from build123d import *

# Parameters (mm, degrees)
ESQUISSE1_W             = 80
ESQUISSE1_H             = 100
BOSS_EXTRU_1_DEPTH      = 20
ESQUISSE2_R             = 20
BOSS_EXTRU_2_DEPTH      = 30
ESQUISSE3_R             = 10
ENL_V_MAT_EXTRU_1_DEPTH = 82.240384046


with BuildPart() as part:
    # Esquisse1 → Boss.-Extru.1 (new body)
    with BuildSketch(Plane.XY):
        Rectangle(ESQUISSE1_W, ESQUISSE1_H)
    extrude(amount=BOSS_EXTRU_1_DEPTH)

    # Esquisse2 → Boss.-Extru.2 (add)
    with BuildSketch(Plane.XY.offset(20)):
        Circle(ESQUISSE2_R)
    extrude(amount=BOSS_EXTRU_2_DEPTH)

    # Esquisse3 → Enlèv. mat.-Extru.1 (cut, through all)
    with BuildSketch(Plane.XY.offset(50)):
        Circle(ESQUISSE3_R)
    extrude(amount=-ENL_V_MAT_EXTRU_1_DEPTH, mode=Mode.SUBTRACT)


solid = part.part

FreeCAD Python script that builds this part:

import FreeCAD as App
import Part
import Sketcher

V = App.Vector

doc = App.newDocument("Part")
body = doc.addObject("PartDesign::Body", "Body")

sketch1 = doc.addObject("Sketcher::SketchObject", "Sketch")
body.addObject(sketch1)
sketch1.AttachmentSupport = (doc.XY_Plane, [""])
sketch1.MapMode = "FlatFace"
sketch1.addGeometry(Part.LineSegment(V(-40, 50, 0), V(-40, -50, 0)), False)
sketch1.addGeometry(Part.LineSegment(V(-40, -50, 0), V(40, -50, 0)), False)
sketch1.addGeometry(Part.LineSegment(V(40, -50, 0), V(40, 50, 0)), False)
sketch1.addGeometry(Part.LineSegment(V(40, 50, 0), V(-40, 50, 0)), False)
sketch1.addConstraint(Sketcher.Constraint("Coincident", 0, 2, 1, 1))
sketch1.addConstraint(Sketcher.Constraint("Coincident", 1, 2, 2, 1))
sketch1.addConstraint(Sketcher.Constraint("Coincident", 2, 2, 3, 1))
sketch1.addConstraint(Sketcher.Constraint("Coincident", 3, 2, 0, 1))
sketch1.addConstraint(Sketcher.Constraint("Vertical", 0))
sketch1.addConstraint(Sketcher.Constraint("Horizontal", 1))
sketch1.addConstraint(Sketcher.Constraint("Vertical", 2))
sketch1.addConstraint(Sketcher.Constraint("Horizontal", 3))
sketch1.addConstraint(Sketcher.Constraint("Symmetric", 0, 2, 2, 2, -1, 1))
sketch1.addConstraint(Sketcher.Constraint("DistanceX", 1, 1, 1, 2, 80.0))
sketch1.addConstraint(Sketcher.Constraint("DistanceY", 0, 2, 0, 1, 100.0))
pad1 = doc.addObject("PartDesign::Pad", "Pad")
body.addObject(pad1)
pad1.Profile = sketch1
pad1.Length = 20

sketch2 = doc.addObject("Sketcher::SketchObject", "Sketch001")
body.addObject(sketch2)
sketch2.AttachmentSupport = (doc.XY_Plane, [""])
sketch2.MapMode = "FlatFace"
sketch2.AttachmentOffset = App.Placement(V(0, 0, 20), App.Rotation())
sketch2.addGeometry(Part.Circle(V(0, 0, 0), V(0, 0, 1), 20), False)
sketch2.addConstraint(Sketcher.Constraint("Coincident", 0, 3, -1, 1))
sketch2.addConstraint(Sketcher.Constraint("Diameter", 0, 40.0))
pad2 = doc.addObject("PartDesign::Pad", "Pad001")
body.addObject(pad2)
pad2.Profile = sketch2
pad2.Length = 30

sketch3 = doc.addObject("Sketcher::SketchObject", "Sketch002")
body.addObject(sketch3)
sketch3.AttachmentSupport = (doc.XY_Plane, [""])
sketch3.MapMode = "FlatFace"
sketch3.AttachmentOffset = App.Placement(V(0, 0, 50), App.Rotation())
sketch3.addGeometry(Part.Circle(V(0, 0, 0), V(0, 0, 1), 10), False)
sketch3.addConstraint(Sketcher.Constraint("Coincident", 0, 3, -1, 1))
sketch3.addConstraint(Sketcher.Constraint("Diameter", 0, 20.0))
pocket1 = doc.addObject("PartDesign::Pocket", "Pocket")
body.addObject(pocket1)
pocket1.Profile = sketch3
pocket1.Type = "ThroughAll"

doc.recompute()
